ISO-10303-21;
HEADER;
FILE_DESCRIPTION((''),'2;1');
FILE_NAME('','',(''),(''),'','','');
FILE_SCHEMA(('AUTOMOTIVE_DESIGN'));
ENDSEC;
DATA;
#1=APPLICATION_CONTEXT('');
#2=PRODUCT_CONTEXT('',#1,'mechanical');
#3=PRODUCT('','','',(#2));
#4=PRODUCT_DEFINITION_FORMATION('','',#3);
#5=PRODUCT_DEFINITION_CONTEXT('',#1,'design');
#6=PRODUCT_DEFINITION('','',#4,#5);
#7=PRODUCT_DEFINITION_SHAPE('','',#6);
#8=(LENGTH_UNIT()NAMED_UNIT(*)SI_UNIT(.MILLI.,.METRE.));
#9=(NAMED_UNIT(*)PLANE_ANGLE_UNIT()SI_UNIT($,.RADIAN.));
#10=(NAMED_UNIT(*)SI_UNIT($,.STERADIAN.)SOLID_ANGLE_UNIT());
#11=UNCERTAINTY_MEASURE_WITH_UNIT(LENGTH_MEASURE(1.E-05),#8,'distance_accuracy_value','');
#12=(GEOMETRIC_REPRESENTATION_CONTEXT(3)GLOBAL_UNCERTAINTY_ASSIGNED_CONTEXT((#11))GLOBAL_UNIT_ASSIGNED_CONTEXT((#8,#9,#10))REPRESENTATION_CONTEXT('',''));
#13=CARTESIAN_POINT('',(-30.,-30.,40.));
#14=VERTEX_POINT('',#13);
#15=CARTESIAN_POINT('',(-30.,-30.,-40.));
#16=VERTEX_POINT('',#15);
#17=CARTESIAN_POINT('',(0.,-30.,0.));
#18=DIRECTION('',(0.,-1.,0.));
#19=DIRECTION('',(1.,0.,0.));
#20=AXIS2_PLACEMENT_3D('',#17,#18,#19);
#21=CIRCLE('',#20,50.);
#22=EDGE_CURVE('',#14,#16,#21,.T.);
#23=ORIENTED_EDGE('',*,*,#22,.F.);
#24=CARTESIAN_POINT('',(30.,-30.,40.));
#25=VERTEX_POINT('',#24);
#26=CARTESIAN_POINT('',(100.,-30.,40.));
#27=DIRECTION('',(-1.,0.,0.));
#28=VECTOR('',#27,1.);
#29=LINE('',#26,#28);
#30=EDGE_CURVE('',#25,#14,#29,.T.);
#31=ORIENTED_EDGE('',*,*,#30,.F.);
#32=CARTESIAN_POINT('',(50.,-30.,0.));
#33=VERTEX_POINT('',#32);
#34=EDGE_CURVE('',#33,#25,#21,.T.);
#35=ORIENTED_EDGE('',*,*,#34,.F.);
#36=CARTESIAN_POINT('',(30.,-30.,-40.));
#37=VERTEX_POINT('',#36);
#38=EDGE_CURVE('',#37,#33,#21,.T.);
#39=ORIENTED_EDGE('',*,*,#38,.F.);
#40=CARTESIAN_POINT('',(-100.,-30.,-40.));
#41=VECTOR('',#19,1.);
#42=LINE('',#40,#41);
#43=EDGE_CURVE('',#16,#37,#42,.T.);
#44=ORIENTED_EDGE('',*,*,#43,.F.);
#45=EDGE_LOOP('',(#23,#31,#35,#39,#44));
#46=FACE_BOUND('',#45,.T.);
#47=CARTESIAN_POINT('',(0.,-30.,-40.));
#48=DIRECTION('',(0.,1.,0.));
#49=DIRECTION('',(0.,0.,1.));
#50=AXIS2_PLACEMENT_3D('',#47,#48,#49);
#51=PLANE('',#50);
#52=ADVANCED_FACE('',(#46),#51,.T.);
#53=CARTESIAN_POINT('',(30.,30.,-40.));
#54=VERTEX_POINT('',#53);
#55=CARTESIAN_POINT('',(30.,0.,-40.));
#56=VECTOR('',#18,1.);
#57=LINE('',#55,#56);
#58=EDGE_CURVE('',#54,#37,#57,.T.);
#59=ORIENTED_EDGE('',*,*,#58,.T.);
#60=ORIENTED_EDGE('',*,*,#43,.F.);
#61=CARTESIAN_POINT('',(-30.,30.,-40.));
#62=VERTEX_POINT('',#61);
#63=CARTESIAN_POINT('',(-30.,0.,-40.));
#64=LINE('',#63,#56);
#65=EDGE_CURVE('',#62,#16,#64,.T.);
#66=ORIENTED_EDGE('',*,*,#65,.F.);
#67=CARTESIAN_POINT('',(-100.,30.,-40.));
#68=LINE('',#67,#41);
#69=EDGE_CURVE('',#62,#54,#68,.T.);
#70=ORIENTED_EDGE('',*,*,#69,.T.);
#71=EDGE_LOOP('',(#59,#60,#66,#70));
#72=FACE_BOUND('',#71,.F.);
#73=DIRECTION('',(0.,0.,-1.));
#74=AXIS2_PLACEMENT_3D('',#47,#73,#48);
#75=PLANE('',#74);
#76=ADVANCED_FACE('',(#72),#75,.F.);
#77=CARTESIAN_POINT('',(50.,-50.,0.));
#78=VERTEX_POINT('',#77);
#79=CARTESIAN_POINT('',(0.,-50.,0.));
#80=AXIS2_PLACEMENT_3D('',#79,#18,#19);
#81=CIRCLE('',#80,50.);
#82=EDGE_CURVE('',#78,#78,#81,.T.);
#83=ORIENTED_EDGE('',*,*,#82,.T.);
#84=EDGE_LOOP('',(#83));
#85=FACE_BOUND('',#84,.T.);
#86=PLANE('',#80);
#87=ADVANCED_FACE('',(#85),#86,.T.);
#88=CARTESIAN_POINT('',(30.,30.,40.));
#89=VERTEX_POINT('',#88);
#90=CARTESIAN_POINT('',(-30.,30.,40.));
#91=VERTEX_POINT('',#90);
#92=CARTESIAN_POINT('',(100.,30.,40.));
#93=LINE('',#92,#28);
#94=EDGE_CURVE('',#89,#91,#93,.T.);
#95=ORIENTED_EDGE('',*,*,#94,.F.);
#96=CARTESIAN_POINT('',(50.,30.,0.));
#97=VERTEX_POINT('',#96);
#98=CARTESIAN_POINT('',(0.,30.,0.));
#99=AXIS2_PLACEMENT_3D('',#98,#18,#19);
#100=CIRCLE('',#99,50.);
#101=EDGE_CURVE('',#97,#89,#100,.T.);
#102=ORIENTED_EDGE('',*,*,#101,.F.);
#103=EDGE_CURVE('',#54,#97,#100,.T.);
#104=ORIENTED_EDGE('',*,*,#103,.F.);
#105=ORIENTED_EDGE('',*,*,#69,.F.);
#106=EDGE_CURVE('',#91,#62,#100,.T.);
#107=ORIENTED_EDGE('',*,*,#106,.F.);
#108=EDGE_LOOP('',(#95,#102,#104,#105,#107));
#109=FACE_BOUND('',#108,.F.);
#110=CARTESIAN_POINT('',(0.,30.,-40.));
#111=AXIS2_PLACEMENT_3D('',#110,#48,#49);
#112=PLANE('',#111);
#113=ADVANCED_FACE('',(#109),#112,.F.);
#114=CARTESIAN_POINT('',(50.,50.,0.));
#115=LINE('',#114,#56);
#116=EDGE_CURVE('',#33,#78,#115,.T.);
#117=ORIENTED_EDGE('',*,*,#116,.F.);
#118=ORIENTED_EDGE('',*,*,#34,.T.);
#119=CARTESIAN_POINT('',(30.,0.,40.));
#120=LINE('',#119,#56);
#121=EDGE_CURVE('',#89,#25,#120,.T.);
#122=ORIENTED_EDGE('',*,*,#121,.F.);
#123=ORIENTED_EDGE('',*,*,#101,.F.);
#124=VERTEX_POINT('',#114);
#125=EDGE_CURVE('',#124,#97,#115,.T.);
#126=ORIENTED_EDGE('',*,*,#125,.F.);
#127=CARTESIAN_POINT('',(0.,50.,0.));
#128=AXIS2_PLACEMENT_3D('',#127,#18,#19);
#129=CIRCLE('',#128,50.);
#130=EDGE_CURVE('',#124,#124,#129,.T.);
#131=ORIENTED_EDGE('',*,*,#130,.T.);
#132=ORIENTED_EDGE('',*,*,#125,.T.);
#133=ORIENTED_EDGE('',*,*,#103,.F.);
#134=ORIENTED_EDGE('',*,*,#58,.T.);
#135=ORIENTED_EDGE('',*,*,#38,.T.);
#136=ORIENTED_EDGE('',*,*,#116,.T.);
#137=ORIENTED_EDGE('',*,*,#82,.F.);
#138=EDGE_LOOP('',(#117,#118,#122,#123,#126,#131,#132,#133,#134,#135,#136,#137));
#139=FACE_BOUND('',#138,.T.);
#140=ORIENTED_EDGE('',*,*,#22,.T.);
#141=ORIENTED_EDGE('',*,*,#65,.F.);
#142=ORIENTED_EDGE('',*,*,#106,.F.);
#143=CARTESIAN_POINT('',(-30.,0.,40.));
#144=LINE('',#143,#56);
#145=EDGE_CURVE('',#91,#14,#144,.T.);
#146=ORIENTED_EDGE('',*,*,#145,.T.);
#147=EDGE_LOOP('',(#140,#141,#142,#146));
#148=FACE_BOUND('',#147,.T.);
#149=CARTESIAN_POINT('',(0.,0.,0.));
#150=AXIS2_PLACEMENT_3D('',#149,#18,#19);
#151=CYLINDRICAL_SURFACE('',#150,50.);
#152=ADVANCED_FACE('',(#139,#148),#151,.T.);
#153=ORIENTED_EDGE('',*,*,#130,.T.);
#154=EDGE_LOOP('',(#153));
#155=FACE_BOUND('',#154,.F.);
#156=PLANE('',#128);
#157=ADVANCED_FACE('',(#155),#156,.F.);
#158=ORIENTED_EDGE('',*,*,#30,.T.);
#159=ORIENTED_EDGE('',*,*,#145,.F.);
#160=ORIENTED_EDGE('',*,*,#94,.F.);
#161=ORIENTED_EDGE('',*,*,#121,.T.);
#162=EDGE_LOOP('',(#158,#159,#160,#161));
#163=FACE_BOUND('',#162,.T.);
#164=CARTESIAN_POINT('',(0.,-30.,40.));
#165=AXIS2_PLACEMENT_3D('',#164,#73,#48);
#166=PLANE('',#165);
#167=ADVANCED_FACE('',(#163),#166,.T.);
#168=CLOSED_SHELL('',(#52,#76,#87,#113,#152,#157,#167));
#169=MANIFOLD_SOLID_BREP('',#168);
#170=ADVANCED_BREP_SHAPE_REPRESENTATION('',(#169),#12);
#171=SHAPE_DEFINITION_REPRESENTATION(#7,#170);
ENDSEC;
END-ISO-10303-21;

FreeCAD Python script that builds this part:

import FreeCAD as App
import Part
import Sketcher

doc = App.newDocument("Part")
body = doc.addObject("PartDesign::Body", "Body")

# Sketch on XZ plane
sketch1 = body.newObject("Sketcher::SketchObject", "Sketch")
sketch1.AttachmentSupport = (doc.getObject("XZ_Plane"), [""])
sketch1.MapMode = "FlatFace"
sketch1.addGeometry(Part.Circle(App.Vector(0, 0, 0), App.Vector(0, 0, 1), 50), False)
sketch1.addConstraint([
    Sketcher.Constraint("Coincident", 0, 3, -1, 1),
    Sketcher.Constraint("Diameter", 0, 100.0),
])
pad1 = body.newObject("PartDesign::Pad", "Pad")
pad1.Profile = sketch1
pad1.Length = 100
pad1.Midplane = True

# Sketch on YZ plane
sketch2 = body.newObject("Sketcher::SketchObject", "Sketch001")
sketch2.AttachmentSupport = (doc.getObject("YZ_Plane"), [""])
sketch2.MapMode = "FlatFace"
sketch2.addGeometry([
    Part.LineSegment(App.Vector(-30, 40, 0), App.Vector(-30, -40, 0)),
    Part.LineSegment(App.Vector(-30, -40, 0), App.Vector(30, -40, 0)),
    Part.LineSegment(App.Vector(30, -40, 0), App.Vector(30, 40, 0)),
    Part.LineSegment(App.Vector(30, 40, 0), App.Vector(-30, 40, 0)),
], False)
sketch2.addConstraint([
    Sketcher.Constraint("Coincident", 0, 2, 1, 1),
    Sketcher.Constraint("Coincident", 1, 2, 2, 1),
    Sketcher.Constraint("Coincident", 2, 2, 3, 1),
    Sketcher.Constraint("Coincident", 3, 2, 0, 1),
    Sketcher.Constraint("Vertical", 0),
    Sketcher.Constraint("Horizontal", 1),
    Sketcher.Constraint("Vertical", 2),
    Sketcher.Constraint("Horizontal", 3),
    Sketcher.Constraint("Symmetric", 0, 2, 2, 2, -1, 1),
    Sketcher.Constraint("DistanceX", 1, 1, 1, 2, 60.0),
    Sketcher.Constraint("DistanceY", 0, 2, 0, 1, 80.0),
])
pocket1 = body.newObject("PartDesign::Pocket", "Pocket")
pocket1.Profile = sketch2
pocket1.Length = 200
pocket1.Midplane = True

doc.recompute()
